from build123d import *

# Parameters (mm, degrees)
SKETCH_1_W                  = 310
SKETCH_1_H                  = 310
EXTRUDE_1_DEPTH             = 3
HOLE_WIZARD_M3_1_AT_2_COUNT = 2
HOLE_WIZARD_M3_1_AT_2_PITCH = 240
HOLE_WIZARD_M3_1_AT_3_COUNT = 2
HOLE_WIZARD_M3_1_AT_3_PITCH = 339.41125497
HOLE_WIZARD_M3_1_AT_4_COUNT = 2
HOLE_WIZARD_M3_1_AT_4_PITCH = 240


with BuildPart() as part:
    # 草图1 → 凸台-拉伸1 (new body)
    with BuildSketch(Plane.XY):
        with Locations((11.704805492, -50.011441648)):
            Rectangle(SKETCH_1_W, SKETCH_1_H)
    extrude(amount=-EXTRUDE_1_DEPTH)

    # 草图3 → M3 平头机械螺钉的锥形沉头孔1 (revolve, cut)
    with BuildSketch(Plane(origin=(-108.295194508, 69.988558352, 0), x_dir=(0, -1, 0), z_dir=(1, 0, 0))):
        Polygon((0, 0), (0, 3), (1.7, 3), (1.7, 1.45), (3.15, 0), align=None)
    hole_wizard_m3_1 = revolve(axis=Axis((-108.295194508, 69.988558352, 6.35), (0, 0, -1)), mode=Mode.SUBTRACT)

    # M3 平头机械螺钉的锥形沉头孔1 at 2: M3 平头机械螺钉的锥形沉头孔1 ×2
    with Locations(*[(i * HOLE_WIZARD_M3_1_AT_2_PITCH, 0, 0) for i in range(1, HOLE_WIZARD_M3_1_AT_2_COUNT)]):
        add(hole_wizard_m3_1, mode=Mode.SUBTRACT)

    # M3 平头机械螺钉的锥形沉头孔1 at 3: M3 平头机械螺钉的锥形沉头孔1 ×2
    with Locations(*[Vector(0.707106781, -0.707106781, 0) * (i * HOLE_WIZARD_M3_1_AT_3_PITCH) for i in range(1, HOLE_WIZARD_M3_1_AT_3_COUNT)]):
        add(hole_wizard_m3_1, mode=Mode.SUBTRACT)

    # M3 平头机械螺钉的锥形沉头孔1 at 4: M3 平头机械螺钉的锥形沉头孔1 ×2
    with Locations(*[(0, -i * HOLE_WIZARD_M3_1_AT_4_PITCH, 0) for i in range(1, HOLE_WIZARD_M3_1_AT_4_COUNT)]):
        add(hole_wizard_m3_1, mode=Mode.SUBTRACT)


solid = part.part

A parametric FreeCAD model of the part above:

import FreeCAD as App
import Part
import Sketcher

V = App.Vector
Q = App.Units.Quantity


def add_polygon(sketch, points):
    """Adds a closed chain of lines whose ends are joined by coincident constraints."""
    first, n = sketch.GeometryCount, len(points)
    for a, b in zip(points, points[1:] + points[:1]):
        sketch.addGeometry(Part.LineSegment(App.Vector(*a, 0), App.Vector(*b, 0)), False)
    for i in range(n):
        sketch.addConstraint(Sketcher.Constraint("Coincident", first + i, 2, first + (i + 1) % n, 1))

doc = App.newDocument("Part")
params = doc.addObject("Spreadsheet::Sheet", "Params")
for row, (alias, value) in enumerate([
    ("sketch1_width", "310 mm"),
    ("pad1_length", "3 mm"),
    ("sketch2_height", "3 mm"),
    ("sketch2_width", "1.7 mm"),
    ("sketch2_width2", "3.15 mm"),
    ("groove_angle", "360 deg"),
    ("linearpattern_pitch", "240 mm"),
    ("linearpattern2_pitch", "339.411255 mm"),
    ("linearpattern3_pitch", "240 mm"),
], start=1):
    params.set(f"A{row}", alias)
    params.set(f"B{row}", "=" + value)
    params.setAlias(f"B{row}", alias)

body = doc.addObject("PartDesign::Body", "Body")

# Sketch on XY plane
sketch1 = body.newObject("Sketcher::SketchObject", "Sketch")
sketch1.AttachmentSupport = (doc.getObject("XY_Plane"), [""])
sketch1.MapMode = "FlatFace"
add_polygon(sketch1, [(-143, 105), (-143, -205), (167, -205), (167, 105)])  # lines 0-3
sketch1.addConstraint(Sketcher.Constraint("Vertical", 0))
sketch1.addConstraint(Sketcher.Constraint("Horizontal", 1))
sketch1.addConstraint(Sketcher.Constraint("Vertical", 2))
sketch1.addConstraint(Sketcher.Constraint("Horizontal", 3))
sketch1.addConstraint(Sketcher.Constraint("Equal", 3, 0))
sketch1.addConstraint(Sketcher.Constraint("DistanceX", 1, 1, 1, 2, 310.0))
sketch1.addConstraint(Sketcher.Constraint("DistanceY", 0, 2, -1, 1, 205.011442))
sketch1.addConstraint(Sketcher.Constraint("DistanceX", 0, 2, -1, 1, 143.295195))
sketch1.setExpression("Constraints[9]", "Params.sketch1_width")
pad1 = body.newObject("PartDesign::Pad", "Pad")
pad1.Profile = sketch1
pad1.setExpression("Length", "Params.pad1_length")
pad1.Reversed = True

# Sketch on YZ plane
sketch2 = body.newObject("Sketcher::SketchObject", "Sketch001")
sketch2.AttachmentSupport = (doc.getObject("YZ_Plane"), [""])
sketch2.MapMode = "FlatFace"
sketch2.AttachmentOffset = App.Placement(V(0, 0, -108.295195), App.Rotation())
add_polygon(sketch2, [(70, -3), (70, 0), (66.8, 0), (68.3, -1.4), (68.3, -3)])  # lines 0-4
sketch2.addGeometry(Part.LineSegment(V(70, 0, 0), V(70, -3, 0)), True)  # axis
sketch2.addConstraint(Sketcher.Constraint("Vertical", 0))
sketch2.addConstraint(Sketcher.Constraint("Horizontal", 1))
sketch2.addConstraint(Sketcher.Constraint("Vertical", 3))
sketch2.addConstraint(Sketcher.Constraint("Horizontal", 4))
sketch2.addConstraint(Sketcher.Constraint("Vertical", 5))
sketch2.addConstraint(Sketcher.Constraint("Coincident", 5, 1, 0, 2))
sketch2.addConstraint(Sketcher.Constraint("PointOnObject", 0, 2, -1))
sketch2.addConstraint(Sketcher.Constraint("Horizontal", 3, 2, 5, 2))
sketch2.addConstraint(Sketcher.Constraint("DistanceY", 0, 1, 0, 2, 3.0))
sketch2.addConstraint(Sketcher.Constraint("Angle", 2, Q("-45 deg")))
sketch2.addConstraint(Sketcher.Constraint("DistanceX", 4, 1, 4, 2, 1.7))
sketch2.addConstraint(Sketcher.Constraint("DistanceX", 1, 2, 1, 1, 3.15))
sketch2.addConstraint(Sketcher.Constraint("DistanceX", -1, 1, 0, 2, 69.988558))
sketch2.setExpression("Constraints[13]", "Params.sketch2_height")
sketch2.setExpression("Constraints[15]", "Params.sketch2_width")
sketch2.setExpression("Constraints[16]", "Params.sketch2_width2")
groove = body.newObject("PartDesign::Groove", "Groove")
groove.Profile = sketch2
groove.ReferenceAxis = (sketch2, ["Axis0"])
groove.setExpression("Angle", "Params.groove_angle")
doc.recompute()

linearpattern = body.newObject("PartDesign::LinearPattern", "LinearPattern")
linearpattern.Originals = [groove]
linearpattern.Direction = (doc.getObject("X_Axis"), [""])
linearpattern.Mode = "offset"
linearpattern.setExpression("Offset", "Params.linearpattern_pitch")
linearpattern.Occurrences = 2
body.Tip = linearpattern
doc.recompute()

datumline = body.newObject("PartDesign::Line", "DatumLine")
datumline.Placement = App.Placement(V(0, 0, 0), App.Rotation(V(0, 0, 1), V(0.707106781, -0.707106781, 0)))
linearpattern2 = body.newObject("PartDesign::LinearPattern", "LinearPattern001")
linearpattern2.Originals = [groove]
linearpattern2.Direction = (datumline, [""])
linearpattern2.Mode = "offset"
linearpattern2.setExpression("Offset", "Params.linearpattern2_pitch")
linearpattern2.Occurrences = 2
body.Tip = linearpattern2
doc.recompute()

linearpattern3 = body.newObject("PartDesign::LinearPattern", "LinearPattern002")
linearpattern3.Originals = [groove]
linearpattern3.Direction = (doc.getObject("Y_Axis"), [""])
linearpattern3.Mode = "offset"
linearpattern3.setExpression("Offset", "Params.linearpattern3_pitch")
linearpattern3.Occurrences = 2
linearpattern3.Reversed = True
body.Tip = linearpattern3

doc.recompute()
